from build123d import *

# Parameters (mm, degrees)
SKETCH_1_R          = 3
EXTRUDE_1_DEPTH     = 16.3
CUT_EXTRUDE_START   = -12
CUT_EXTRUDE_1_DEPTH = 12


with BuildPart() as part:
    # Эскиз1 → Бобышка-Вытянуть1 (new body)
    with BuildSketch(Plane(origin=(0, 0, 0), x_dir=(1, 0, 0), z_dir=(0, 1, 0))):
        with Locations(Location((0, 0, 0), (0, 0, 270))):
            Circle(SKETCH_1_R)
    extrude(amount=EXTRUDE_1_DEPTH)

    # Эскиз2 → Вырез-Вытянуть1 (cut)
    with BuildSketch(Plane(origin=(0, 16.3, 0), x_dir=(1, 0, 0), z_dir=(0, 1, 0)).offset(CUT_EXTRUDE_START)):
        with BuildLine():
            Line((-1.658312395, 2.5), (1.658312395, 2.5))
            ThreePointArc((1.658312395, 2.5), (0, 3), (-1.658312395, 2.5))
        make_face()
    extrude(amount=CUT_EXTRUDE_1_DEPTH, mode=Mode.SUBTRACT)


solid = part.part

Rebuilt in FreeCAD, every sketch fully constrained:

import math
import FreeCAD as App
import Part
import Sketcher

V = App.Vector
Q = App.Units.Quantity

doc = App.newDocument("Part")
params = doc.addObject("Spreadsheet::Sheet", "Params")
for row, (alias, value) in enumerate([
    ("sketch1_diameter", "6 mm"),
    ("pad1_length", "16.3 mm"),
    ("sketch2_radius", "3 mm"),
    ("pocket1_length", "12 mm"),
], start=1):
    params.set(f"A{row}", alias)
    params.set(f"B{row}", "=" + value)
    params.setAlias(f"B{row}", alias)

body = doc.addObject("PartDesign::Body", "Body")

sketch1 = doc.addObject("Sketcher::SketchObject", "Sketch")
body.addObject(sketch1)
sketch1.AttachmentSupport = (doc.XZ_Plane, [""])
sketch1.MapMode = "FlatFace"
sketch1.addGeometry(Part.Circle(V(0, 0, 0), V(0, 0, 1), 3), False)
sketch1.addConstraint([
    Sketcher.Constraint("Coincident", 0, 3, -1, 1),
    Sketcher.Constraint("Diameter", 0, Q("6 mm")),
])
sketch1.setExpression("Constraints[1]", "Params.sketch1_diameter")
pad1 = doc.addObject("PartDesign::Pad", "Pad")
body.addObject(pad1)
pad1.Profile = sketch1
pad1.setExpression("Length", "Params.pad1_length")
pad1.Reversed = True

sketch2 = doc.addObject("Sketcher::SketchObject", "Sketch001")
body.addObject(sketch2)
sketch2.AttachmentSupport = (doc.XZ_Plane, [""])
sketch2.MapMode = "FlatFace"
sketch2.AttachmentOffset = App.Placement(V(0, 0, -4.3), App.Rotation())
sketch2.addGeometry([
    Part.LineSegment(V(-1.7, -2.5, 0), V(1.7, -2.5, 0)),
    Part.ArcOfCircle(Part.Circle(V(0, 0, 0), V(0, 0, 1), 3), math.radians(-124), math.radians(-56)),
], False)
sketch2.addConstraint([
    Sketcher.Constraint("Coincident", 0, 1, 1, 1),
    Sketcher.Constraint("Coincident", 1, 2, 0, 2),
    Sketcher.Constraint("Horizontal", 0),
    Sketcher.Constraint("Coincident", 1, 3, -1, 1),
    Sketcher.Constraint("Radius", 1, Q("3 mm")),
    Sketcher.Constraint("DistanceY", 0, 1, -1, 1, Q("2.5 mm")),
])
sketch2.setExpression("Constraints[4]", "Params.sketch2_radius")
pocket1 = doc.addObject("PartDesign::Pocket", "Pocket")
body.addObject(pocket1)
pocket1.Profile = sketch2
pocket1.setExpression("Length", "Params.pocket1_length")

doc.recompute()
